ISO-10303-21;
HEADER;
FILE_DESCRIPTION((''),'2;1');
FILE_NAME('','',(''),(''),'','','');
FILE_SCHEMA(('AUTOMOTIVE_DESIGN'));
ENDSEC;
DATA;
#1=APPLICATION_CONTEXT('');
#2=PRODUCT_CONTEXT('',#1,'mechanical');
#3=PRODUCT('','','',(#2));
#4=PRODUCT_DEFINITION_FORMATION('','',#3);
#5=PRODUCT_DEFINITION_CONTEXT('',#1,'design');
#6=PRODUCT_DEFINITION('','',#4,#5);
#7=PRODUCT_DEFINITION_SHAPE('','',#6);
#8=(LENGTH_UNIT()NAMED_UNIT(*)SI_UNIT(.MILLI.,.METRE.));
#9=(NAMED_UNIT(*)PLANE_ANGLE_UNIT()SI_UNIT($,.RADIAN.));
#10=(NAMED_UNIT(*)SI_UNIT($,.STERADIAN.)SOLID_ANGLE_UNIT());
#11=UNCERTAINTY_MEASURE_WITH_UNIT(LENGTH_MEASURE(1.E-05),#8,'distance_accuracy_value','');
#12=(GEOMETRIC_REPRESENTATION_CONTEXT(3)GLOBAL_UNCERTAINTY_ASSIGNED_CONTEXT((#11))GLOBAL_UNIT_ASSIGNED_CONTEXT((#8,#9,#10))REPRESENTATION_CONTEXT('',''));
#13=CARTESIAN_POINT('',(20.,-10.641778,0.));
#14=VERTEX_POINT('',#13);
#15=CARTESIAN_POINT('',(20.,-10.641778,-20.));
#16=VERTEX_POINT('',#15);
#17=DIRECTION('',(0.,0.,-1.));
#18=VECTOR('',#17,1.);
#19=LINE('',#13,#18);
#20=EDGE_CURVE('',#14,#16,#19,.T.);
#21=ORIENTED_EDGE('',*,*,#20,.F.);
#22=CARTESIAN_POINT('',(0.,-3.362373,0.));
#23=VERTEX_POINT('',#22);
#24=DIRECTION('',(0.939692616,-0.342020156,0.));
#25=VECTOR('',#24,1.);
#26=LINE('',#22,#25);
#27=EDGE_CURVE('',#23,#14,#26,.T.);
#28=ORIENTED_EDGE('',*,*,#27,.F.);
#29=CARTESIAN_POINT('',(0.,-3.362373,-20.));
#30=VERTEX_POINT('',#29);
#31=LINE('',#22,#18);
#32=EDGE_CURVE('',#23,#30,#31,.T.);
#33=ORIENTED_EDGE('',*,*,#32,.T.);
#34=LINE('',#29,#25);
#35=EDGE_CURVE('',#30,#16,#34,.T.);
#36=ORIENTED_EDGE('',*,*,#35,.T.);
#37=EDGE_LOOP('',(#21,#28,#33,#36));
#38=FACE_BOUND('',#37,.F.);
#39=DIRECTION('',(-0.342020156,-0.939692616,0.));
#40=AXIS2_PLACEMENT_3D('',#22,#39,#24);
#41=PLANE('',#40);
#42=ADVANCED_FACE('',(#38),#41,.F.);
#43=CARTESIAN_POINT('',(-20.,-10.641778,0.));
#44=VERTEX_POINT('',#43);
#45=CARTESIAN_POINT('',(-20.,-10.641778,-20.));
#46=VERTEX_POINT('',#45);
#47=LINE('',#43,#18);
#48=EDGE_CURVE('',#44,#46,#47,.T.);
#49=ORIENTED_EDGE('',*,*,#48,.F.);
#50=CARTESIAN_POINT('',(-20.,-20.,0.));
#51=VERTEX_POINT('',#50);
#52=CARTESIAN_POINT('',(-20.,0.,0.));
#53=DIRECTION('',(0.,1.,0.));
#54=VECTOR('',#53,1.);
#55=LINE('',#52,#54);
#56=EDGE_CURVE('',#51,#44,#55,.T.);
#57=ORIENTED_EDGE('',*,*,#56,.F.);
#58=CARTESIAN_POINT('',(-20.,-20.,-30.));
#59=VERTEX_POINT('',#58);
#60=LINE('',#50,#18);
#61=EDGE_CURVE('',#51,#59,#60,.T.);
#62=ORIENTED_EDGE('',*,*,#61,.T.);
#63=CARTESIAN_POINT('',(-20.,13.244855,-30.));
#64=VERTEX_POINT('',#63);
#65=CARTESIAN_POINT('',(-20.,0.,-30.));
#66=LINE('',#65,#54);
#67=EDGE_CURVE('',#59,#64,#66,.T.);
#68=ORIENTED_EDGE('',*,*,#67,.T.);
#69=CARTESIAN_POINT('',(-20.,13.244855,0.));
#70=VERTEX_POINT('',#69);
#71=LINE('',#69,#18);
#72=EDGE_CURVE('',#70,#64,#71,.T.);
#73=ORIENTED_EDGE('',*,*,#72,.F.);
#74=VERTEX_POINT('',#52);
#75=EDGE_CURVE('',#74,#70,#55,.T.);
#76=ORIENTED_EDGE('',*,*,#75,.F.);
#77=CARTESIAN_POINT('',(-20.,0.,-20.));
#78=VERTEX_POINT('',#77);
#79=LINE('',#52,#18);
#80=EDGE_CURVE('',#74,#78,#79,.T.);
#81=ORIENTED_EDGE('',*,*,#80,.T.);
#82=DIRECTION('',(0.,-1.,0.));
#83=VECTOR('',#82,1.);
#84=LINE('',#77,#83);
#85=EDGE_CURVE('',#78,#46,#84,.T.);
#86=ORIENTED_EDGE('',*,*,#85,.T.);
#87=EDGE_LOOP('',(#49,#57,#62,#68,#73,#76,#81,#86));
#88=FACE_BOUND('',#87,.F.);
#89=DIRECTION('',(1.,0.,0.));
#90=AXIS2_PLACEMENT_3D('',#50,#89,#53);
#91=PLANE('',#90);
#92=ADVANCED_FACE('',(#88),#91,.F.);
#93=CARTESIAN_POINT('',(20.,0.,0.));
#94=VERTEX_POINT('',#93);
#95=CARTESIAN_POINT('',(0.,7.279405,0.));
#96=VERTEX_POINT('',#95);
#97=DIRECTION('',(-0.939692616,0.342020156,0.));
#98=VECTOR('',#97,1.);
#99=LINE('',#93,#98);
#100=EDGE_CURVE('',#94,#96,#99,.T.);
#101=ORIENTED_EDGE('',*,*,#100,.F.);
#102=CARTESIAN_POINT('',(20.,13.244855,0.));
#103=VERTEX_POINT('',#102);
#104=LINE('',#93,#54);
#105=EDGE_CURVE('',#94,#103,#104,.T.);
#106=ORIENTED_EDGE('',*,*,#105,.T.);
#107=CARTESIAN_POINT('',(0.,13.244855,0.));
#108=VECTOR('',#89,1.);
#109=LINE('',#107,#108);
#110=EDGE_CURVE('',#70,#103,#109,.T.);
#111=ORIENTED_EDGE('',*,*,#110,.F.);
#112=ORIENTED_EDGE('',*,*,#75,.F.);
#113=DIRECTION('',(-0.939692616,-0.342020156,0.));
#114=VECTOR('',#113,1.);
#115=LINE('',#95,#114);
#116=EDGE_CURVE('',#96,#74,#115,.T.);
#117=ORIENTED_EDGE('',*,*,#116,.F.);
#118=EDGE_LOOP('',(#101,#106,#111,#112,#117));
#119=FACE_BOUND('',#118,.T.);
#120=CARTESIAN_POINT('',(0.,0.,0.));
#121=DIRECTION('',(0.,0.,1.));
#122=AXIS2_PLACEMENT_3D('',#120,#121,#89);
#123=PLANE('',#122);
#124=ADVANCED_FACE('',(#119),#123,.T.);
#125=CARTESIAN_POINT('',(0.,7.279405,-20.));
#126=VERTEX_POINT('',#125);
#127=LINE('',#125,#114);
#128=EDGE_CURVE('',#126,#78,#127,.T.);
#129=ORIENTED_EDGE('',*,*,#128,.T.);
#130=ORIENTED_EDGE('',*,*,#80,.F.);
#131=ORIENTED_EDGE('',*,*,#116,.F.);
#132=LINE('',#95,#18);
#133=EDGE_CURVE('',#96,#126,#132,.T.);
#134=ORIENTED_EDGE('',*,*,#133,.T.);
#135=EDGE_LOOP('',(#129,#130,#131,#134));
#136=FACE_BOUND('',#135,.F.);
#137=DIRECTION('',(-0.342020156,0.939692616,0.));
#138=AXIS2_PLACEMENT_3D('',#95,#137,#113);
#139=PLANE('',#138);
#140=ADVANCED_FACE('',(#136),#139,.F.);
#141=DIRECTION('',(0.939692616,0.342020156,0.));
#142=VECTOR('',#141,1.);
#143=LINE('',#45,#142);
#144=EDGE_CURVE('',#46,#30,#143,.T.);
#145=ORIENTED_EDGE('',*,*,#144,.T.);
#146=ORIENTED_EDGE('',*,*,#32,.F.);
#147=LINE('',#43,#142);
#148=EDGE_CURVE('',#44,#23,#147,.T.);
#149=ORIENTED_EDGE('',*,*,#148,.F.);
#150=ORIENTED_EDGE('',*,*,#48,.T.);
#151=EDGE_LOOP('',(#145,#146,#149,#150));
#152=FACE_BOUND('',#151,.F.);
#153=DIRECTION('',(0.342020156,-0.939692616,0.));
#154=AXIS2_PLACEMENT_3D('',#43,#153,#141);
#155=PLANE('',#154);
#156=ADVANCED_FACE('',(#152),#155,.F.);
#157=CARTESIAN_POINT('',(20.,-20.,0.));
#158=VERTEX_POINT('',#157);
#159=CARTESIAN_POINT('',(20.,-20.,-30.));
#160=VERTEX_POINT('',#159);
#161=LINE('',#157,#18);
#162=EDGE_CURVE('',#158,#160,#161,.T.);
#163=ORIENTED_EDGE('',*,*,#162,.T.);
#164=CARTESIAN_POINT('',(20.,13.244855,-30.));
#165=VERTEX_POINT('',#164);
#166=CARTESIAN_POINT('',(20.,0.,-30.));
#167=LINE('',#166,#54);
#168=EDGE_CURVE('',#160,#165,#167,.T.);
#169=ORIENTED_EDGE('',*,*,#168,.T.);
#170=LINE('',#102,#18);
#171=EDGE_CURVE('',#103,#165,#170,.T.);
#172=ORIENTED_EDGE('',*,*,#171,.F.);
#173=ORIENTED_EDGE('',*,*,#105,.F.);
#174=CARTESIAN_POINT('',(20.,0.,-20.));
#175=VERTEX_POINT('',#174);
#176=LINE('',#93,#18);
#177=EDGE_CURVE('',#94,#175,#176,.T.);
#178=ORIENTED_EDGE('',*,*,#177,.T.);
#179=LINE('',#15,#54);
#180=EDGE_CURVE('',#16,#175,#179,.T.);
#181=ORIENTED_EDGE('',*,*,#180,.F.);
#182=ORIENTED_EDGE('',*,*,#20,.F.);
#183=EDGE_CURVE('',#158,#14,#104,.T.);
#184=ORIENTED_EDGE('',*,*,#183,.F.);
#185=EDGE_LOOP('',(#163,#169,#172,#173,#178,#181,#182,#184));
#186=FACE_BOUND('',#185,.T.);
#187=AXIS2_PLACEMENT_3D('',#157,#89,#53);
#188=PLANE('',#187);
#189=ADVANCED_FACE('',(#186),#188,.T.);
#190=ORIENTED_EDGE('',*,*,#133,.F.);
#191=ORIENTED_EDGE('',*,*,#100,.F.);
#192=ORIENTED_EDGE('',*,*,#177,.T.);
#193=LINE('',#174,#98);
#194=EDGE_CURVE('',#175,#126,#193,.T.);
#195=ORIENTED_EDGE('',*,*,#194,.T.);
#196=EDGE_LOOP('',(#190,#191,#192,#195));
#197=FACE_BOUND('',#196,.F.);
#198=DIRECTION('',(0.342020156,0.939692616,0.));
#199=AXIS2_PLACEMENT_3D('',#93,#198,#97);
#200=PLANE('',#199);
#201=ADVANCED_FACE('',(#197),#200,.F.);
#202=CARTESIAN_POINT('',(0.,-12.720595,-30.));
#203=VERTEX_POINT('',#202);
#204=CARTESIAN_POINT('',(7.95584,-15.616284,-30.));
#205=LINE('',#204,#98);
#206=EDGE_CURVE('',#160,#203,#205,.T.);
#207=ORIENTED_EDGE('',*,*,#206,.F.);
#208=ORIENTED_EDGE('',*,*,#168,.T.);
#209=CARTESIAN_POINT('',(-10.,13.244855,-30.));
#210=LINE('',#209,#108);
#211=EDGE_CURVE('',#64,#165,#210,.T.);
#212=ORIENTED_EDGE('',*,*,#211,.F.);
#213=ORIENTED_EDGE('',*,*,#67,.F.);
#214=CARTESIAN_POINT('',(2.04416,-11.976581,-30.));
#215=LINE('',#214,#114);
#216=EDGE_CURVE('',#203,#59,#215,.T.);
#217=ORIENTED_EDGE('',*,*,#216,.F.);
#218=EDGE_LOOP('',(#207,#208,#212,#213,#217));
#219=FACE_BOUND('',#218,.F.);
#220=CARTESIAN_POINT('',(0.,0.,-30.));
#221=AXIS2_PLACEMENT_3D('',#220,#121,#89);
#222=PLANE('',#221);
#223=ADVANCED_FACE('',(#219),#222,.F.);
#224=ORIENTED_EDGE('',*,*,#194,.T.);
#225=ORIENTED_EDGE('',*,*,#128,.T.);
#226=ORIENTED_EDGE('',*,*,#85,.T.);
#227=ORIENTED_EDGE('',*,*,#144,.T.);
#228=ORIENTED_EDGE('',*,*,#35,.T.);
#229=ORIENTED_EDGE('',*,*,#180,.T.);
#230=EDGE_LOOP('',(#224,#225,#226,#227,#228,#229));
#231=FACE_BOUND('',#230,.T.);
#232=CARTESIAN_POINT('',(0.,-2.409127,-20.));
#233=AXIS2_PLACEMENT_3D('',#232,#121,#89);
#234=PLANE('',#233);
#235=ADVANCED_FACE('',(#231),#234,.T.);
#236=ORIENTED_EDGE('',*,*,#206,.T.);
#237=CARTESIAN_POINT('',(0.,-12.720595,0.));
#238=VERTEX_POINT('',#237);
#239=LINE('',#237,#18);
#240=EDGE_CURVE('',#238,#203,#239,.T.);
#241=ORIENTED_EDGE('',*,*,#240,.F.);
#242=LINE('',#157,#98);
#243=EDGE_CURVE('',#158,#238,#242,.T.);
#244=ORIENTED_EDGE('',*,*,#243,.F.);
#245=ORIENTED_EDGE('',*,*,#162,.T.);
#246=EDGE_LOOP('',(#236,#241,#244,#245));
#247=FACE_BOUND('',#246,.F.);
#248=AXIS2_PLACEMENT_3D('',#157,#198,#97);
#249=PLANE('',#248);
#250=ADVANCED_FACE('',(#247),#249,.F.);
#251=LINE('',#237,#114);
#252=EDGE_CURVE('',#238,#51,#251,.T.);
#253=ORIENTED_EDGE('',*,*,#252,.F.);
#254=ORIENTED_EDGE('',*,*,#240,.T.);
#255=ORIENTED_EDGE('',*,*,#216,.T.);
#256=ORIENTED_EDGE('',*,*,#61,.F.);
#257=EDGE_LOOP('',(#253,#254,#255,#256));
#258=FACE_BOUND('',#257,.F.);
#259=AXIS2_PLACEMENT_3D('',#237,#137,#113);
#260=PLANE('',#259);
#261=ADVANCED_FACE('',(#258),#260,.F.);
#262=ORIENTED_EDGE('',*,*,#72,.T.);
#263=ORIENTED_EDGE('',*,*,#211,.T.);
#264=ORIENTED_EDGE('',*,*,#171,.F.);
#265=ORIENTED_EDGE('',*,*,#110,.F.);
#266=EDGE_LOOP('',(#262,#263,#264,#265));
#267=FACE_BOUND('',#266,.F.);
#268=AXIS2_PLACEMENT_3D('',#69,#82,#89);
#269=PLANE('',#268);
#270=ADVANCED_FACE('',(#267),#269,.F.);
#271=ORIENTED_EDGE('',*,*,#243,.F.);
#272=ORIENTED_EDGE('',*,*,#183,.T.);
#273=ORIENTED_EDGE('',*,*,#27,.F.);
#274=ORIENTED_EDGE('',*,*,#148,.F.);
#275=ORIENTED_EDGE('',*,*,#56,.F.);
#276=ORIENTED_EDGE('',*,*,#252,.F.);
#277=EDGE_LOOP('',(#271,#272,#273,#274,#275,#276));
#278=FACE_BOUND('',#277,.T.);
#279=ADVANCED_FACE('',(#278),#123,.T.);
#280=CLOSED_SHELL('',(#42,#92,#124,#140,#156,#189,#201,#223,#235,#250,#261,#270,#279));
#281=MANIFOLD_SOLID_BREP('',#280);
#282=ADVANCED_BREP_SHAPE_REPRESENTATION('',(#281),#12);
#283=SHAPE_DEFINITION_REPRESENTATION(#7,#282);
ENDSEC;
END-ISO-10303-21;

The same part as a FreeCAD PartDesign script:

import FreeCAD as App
import Part
import Sketcher
from FreeCAD import Vector
Q = App.Units.Quantity

doc = App.newDocument("Part")
body = doc.addObject("PartDesign::Body", "Body")

sketch1 = doc.addObject("Sketcher::SketchObject", "Sketch")
body.addObject(sketch1)
sketch1.AttachmentSupport = (doc.XY_Plane, [""])
sketch1.MapMode = "FlatFace"
sketch1.addGeometry([
    Part.LineSegment(Vector(-20, 20, 0), Vector(-20, -20, 0)),
    Part.LineSegment(Vector(-20, -20, 0), Vector(20, -20, 0)),
    Part.LineSegment(Vector(20, -20, 0), Vector(20, 20, 0)),
    Part.LineSegment(Vector(20, 20, 0), Vector(-20, 20, 0)),
], False)
sketch1.addConstraint([
    Sketcher.Constraint("Coincident", 0, 2, 1, 1),
    Sketcher.Constraint("Coincident", 1, 2, 2, 1),
    Sketcher.Constraint("Coincident", 2, 2, 3, 1),
    Sketcher.Constraint("Coincident", 3, 2, 0, 1),
    Sketcher.Constraint("Vertical", 0),
    Sketcher.Constraint("Horizontal", 1),
    Sketcher.Constraint("Vertical", 2),
    Sketcher.Constraint("Horizontal", 3),
    Sketcher.Constraint("Symmetric", 0, 2, 2, 2, -1, 1),
    Sketcher.Constraint("Equal", 3, 0),
    Sketcher.Constraint("DistanceX", 1, 1, 1, 2, 40.0),
])
pad1 = doc.addObject("PartDesign::Pad", "Pad")
body.addObject(pad1)
pad1.Profile = sketch1
pad1.Length = 30
pad1.Reversed = True

sketch2 = doc.addObject("Sketcher::SketchObject", "Sketch001")
body.addObject(sketch2)
sketch2.AttachmentSupport = (doc.XY_Plane, [""])
sketch2.MapMode = "FlatFace"
sketch2.addGeometry([
    Part.LineSegment(Vector(20, -11, 0), Vector(20, 0, 0)),
    Part.LineSegment(Vector(20, 0, 0), Vector(0, 7, 0)),
    Part.LineSegment(Vector(0, 7, 0), Vector(-20, 0, 0)),
    Part.LineSegment(Vector(-20, 0, 0), Vector(-20, -11, 0)),
    Part.LineSegment(Vector(-20, -11, 0), Vector(0, -3, 0)),
    Part.LineSegment(Vector(0, -3, 0), Vector(20, -11, 0)),
], False)
sketch2.addConstraint([
    Sketcher.Constraint("Coincident", 0, 2, 1, 1),
    Sketcher.Constraint("Coincident", 1, 2, 2, 1),
    Sketcher.Constraint("Coincident", 2, 2, 3, 1),
    Sketcher.Constraint("Coincident", 3, 2, 4, 1),
    Sketcher.Constraint("Coincident", 4, 2, 5, 1),
    Sketcher.Constraint("Coincident", 5, 2, 0, 1),
    Sketcher.Constraint("Vertical", 0),
    Sketcher.Constraint("Vertical", 3),
    Sketcher.Constraint("Symmetric", 0, 2, 2, 2, -1, 1),
    Sketcher.Constraint("PointOnObject", 0, 2, -1),
    Sketcher.Constraint("PointOnObject", 1, 2, -2),
    Sketcher.Constraint("PointOnObject", 4, 2, -2),
    Sketcher.Constraint("Parallel", 2, 4),
    Sketcher.Constraint("Parallel", 1, 5),
    Sketcher.Constraint("Angle", 1, Q("159.999999 deg")),
    Sketcher.Constraint("DistanceX", -1, 1, 0, 2, 20.0),
    Sketcher.Constraint("DistanceY", 0, 1, 0, 2, 10.641778),
])
pocket1 = doc.addObject("PartDesign::Pocket", "Pocket")
body.addObject(pocket1)
pocket1.Profile = sketch2
pocket1.Length = 20

sketch3 = doc.addObject("Sketcher::SketchObject", "Sketch002")
body.addObject(sketch3)
sketch3.AttachmentSupport = (doc.XY_Plane, [""])
sketch3.MapMode = "FlatFace"
sketch3.addGeometry([
    Part.LineSegment(Vector(-20, -20, 0), Vector(20, -20, 0)),
    Part.LineSegment(Vector(20, -20, 0), Vector(0, -13, 0)),
    Part.LineSegment(Vector(0, -13, 0), Vector(-20, -20, 0)),
    Part.LineSegment(Vector(-20, 20, 0), Vector(-20, 13, 0)),
    Part.LineSegment(Vector(-20, 13, 0), Vector(20, 13, 0)),
    Part.LineSegment(Vector(20, 13, 0), Vector(20, 20, 0)),
    Part.LineSegment(Vector(20, 20, 0), Vector(-20, 20, 0)),
], False)
sketch3.addConstraint([
    Sketcher.Constraint("Coincident", 0, 2, 1, 1),
    Sketcher.Constraint("Coincident", 1, 2, 2, 1),
    Sketcher.Constraint("Coincident", 2, 2, 0, 1),
    Sketcher.Constraint("Coincident", 3, 2, 4, 1),
    Sketcher.Constraint("Coincident", 4, 2, 5, 1),
    Sketcher.Constraint("Coincident", 5, 2, 6, 1),
    Sketcher.Constraint("Coincident", 6, 2, 3, 1),
    Sketcher.Constraint("Horizontal", 0),
    Sketcher.Constraint("Vertical", 3),
    Sketcher.Constraint("Horizontal", 4),
    Sketcher.Constraint("Vertical", 5),
    Sketcher.Constraint("Horizontal", 6),
    Sketcher.Constraint("Symmetric", 2, 2, 5, 2, -1, 1),
    Sketcher.Constraint("PointOnObject", 1, 2, -2),
    Sketcher.Constraint("Vertical", 2, 2, 3, 2),
    Sketcher.Constraint("Vertical", 0, 2, 4, 2),
    Sketcher.Constraint("DistanceX", 0, 1, 0, 2, 40.0),
    Sketcher.Constraint("Angle", 1, Q("159.999999 deg")),
    Sketcher.Constraint("DistanceY", 0, 2, -1, 1, 20.0),
    Sketcher.Constraint("DistanceY", 3, 2, 3, 1, 6.755145),
])
pocket2 = doc.addObject("PartDesign::Pocket", "Pocket001")
body.addObject(pocket2)
pocket2.Profile = sketch3
pocket2.Type = "ThroughAll"

doc.recompute()
